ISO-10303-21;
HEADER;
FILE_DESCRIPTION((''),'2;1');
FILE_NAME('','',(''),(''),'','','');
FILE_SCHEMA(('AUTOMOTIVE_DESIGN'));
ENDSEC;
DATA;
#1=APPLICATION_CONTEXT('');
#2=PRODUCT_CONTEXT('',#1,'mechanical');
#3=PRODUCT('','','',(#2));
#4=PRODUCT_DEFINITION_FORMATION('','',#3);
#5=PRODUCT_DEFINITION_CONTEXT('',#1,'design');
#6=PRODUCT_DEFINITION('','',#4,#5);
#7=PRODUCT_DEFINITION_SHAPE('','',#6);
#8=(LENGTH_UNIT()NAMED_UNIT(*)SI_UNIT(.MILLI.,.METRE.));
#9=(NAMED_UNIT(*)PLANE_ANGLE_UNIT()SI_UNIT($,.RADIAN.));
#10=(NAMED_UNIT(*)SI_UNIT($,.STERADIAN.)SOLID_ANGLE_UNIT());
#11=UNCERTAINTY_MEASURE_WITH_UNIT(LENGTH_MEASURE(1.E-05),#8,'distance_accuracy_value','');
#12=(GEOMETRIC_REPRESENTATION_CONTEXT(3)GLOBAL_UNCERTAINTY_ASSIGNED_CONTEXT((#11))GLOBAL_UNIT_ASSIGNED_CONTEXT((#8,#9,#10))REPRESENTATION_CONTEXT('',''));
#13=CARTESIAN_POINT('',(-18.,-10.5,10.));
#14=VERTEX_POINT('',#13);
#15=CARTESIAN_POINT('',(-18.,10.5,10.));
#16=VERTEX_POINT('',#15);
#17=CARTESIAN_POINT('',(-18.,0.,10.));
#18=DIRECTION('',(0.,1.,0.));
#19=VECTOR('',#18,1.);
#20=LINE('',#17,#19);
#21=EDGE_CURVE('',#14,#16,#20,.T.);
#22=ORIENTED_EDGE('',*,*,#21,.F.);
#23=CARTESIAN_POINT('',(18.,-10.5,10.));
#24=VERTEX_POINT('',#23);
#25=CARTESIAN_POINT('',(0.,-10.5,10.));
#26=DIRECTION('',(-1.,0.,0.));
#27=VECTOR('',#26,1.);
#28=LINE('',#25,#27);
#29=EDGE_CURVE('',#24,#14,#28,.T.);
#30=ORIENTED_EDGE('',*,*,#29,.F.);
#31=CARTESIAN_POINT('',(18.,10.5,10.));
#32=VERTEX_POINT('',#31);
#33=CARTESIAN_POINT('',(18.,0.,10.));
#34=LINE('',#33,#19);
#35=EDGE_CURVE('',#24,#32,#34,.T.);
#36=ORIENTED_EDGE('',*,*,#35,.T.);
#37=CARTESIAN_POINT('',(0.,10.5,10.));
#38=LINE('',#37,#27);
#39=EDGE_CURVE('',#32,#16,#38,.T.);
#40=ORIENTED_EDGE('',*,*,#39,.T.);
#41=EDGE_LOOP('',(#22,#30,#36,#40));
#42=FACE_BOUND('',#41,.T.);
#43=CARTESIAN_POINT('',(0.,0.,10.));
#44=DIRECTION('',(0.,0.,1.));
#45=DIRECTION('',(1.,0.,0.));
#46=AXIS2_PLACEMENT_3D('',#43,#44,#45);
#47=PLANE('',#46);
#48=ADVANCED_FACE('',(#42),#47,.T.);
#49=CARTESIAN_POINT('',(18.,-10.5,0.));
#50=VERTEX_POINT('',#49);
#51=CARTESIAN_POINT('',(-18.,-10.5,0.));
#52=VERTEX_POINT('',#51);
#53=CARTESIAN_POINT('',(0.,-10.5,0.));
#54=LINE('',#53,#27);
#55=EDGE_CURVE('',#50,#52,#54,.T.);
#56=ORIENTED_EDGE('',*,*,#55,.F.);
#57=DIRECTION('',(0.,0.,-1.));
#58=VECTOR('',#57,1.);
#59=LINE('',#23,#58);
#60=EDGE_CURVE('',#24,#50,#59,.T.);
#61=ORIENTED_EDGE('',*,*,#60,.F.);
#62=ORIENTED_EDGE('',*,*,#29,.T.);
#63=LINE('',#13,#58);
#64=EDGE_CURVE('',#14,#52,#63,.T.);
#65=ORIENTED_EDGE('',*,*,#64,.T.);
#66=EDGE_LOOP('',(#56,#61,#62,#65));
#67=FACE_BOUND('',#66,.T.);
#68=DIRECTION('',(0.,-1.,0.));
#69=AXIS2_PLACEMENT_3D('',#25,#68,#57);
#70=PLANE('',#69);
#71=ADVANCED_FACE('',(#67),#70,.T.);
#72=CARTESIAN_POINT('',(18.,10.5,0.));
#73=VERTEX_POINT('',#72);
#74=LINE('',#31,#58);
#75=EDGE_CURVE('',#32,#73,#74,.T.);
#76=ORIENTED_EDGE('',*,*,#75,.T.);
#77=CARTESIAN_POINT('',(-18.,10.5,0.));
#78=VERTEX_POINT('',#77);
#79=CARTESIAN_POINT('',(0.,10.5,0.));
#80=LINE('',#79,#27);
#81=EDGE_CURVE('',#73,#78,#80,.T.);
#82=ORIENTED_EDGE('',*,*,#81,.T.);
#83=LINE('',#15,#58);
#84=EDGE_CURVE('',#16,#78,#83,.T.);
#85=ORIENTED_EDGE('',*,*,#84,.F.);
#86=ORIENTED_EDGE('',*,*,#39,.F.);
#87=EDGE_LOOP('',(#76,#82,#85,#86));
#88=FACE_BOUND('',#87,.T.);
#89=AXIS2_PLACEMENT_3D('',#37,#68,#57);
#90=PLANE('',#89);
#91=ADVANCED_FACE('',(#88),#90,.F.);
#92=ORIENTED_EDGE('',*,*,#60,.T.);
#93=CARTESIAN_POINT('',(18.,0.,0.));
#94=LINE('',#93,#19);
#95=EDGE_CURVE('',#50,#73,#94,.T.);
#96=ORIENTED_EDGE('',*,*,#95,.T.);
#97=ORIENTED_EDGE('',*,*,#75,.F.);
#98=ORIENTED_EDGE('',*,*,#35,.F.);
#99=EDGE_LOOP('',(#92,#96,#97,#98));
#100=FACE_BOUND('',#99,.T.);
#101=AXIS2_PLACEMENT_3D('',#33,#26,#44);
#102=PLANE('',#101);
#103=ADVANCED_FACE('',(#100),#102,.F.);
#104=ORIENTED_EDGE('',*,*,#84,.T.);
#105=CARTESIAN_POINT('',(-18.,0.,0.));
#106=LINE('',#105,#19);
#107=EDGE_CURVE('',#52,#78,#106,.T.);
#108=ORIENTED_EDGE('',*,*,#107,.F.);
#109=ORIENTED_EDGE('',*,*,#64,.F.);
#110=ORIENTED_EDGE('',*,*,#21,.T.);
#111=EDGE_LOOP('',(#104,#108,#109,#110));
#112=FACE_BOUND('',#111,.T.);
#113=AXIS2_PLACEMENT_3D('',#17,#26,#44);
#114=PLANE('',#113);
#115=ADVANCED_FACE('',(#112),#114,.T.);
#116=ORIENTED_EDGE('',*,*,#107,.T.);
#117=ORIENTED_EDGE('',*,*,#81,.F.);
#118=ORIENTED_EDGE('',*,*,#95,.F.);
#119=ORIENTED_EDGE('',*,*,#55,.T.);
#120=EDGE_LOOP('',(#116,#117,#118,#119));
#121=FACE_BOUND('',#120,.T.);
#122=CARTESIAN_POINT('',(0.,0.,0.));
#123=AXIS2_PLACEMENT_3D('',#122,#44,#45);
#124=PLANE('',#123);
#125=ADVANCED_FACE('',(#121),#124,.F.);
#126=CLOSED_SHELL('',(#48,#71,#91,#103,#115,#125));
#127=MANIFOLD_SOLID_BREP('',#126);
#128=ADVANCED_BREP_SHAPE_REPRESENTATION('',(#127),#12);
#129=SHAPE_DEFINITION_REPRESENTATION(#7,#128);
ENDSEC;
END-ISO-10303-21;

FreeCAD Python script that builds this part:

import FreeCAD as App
import Part
import Sketcher

V = App.Vector
Q = App.Units.Quantity


def add_polygon(sketch, points):
    """Adds a closed chain of lines whose ends are joined by coincident constraints."""
    first, n = sketch.GeometryCount, len(points)
    for a, b in zip(points, points[1:] + points[:1]):
        sketch.addGeometry(Part.LineSegment(App.Vector(*a, 0), App.Vector(*b, 0)), False)
    for i in range(n):
        sketch.addConstraint(Sketcher.Constraint("Coincident", first + i, 2, first + (i + 1) % n, 1))

doc = App.newDocument("Part")
body = doc.addObject("PartDesign::Body", "Body")

# Sketch on XY plane
sketch1 = body.newObject("Sketcher::SketchObject", "Sketch")
sketch1.AttachmentSupport = (doc.getObject("XY_Plane"), [""])
sketch1.MapMode = "FlatFace"
add_polygon(sketch1, [(-18, 10), (-18, -10), (18, -10), (18, 10)])  # lines 0-3
sketch1.addConstraint([
    Sketcher.Constraint("Vertical", 0),
    Sketcher.Constraint("Horizontal", 1),
    Sketcher.Constraint("Vertical", 2),
    Sketcher.Constraint("Horizontal", 3),
    Sketcher.Constraint("Symmetric", 0, 2, 2, 2, -1, 1),
    Sketcher.Constraint("DistanceX", 1, 1, 1, 2, Q("36 mm")),
    Sketcher.Constraint("DistanceY", 0, 2, 0, 1, Q("21 mm")),
])
pad1 = body.newObject("PartDesign::Pad", "Pad")
pad1.Profile = sketch1
pad1.Length = 10

doc.recompute()
